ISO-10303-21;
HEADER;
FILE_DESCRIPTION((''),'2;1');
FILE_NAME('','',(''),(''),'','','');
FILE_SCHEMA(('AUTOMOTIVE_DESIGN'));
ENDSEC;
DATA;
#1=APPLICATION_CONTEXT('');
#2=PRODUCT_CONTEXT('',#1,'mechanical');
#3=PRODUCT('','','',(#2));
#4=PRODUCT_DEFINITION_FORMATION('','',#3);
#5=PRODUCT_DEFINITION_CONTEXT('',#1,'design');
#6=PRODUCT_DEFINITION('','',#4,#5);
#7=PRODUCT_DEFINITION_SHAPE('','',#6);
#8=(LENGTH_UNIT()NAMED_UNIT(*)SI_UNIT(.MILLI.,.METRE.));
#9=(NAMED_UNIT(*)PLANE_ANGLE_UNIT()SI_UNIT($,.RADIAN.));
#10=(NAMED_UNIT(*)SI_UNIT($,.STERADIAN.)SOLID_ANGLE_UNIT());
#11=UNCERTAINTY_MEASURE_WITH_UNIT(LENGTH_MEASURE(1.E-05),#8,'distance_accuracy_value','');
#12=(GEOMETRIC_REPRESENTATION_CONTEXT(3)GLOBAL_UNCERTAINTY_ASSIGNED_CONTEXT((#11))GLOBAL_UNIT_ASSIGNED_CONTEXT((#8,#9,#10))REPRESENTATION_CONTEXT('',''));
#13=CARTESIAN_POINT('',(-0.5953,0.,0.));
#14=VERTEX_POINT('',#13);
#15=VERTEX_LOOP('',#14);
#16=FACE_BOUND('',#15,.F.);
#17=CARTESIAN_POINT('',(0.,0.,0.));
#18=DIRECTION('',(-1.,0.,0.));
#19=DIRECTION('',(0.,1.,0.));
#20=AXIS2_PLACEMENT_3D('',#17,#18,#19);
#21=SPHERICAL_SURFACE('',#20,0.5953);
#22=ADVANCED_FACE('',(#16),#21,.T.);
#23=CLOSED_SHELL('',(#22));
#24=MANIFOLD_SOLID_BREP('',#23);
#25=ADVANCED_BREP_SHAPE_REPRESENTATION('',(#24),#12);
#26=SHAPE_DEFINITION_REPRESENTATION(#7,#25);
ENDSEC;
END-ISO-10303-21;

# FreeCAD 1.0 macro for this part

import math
import FreeCAD as App
import Part
import Sketcher

V = App.Vector
Q = App.Units.Quantity

doc = App.newDocument("Part")
body = doc.addObject("PartDesign::Body", "Body")

# Sketch on XY plane
sketch1 = body.newObject("Sketcher::SketchObject", "Sketch")
sketch1.AttachmentSupport = (doc.getObject("XY_Plane"), [""])
sketch1.MapMode = "FlatFace"
sketch1.addGeometry(Part.LineSegment(V(-0.5953, 0, 0), V(0.5953, 0, 0)), False)
sketch1.addGeometry(Part.ArcOfCircle(Part.Circle(V(0, 0, 0), V(0, 0, 1), 0.5953), math.radians(0), math.radians(180)), False)
sketch1.addConstraint(Sketcher.Constraint("Coincident", 0, 1, 1, 2))
sketch1.addConstraint(Sketcher.Constraint("Coincident", 1, 1, 0, 2))
sketch1.addConstraint(Sketcher.Constraint("Horizontal", 0))
sketch1.addConstraint(Sketcher.Constraint("Coincident", 1, 3, -1, 1))
sketch1.addConstraint(Sketcher.Constraint("PointOnObject", 0, 1, -1))
sketch1.addConstraint(Sketcher.Constraint("DistanceX", 0, 1, 0, 2, Q("0.046874 in")))
revolution = body.newObject("PartDesign::Revolution", "Revolution")
revolution.Profile = sketch1
revolution.ReferenceAxis = (sketch1, ["H_Axis"])
revolution.Angle = 360

doc.recompute()
